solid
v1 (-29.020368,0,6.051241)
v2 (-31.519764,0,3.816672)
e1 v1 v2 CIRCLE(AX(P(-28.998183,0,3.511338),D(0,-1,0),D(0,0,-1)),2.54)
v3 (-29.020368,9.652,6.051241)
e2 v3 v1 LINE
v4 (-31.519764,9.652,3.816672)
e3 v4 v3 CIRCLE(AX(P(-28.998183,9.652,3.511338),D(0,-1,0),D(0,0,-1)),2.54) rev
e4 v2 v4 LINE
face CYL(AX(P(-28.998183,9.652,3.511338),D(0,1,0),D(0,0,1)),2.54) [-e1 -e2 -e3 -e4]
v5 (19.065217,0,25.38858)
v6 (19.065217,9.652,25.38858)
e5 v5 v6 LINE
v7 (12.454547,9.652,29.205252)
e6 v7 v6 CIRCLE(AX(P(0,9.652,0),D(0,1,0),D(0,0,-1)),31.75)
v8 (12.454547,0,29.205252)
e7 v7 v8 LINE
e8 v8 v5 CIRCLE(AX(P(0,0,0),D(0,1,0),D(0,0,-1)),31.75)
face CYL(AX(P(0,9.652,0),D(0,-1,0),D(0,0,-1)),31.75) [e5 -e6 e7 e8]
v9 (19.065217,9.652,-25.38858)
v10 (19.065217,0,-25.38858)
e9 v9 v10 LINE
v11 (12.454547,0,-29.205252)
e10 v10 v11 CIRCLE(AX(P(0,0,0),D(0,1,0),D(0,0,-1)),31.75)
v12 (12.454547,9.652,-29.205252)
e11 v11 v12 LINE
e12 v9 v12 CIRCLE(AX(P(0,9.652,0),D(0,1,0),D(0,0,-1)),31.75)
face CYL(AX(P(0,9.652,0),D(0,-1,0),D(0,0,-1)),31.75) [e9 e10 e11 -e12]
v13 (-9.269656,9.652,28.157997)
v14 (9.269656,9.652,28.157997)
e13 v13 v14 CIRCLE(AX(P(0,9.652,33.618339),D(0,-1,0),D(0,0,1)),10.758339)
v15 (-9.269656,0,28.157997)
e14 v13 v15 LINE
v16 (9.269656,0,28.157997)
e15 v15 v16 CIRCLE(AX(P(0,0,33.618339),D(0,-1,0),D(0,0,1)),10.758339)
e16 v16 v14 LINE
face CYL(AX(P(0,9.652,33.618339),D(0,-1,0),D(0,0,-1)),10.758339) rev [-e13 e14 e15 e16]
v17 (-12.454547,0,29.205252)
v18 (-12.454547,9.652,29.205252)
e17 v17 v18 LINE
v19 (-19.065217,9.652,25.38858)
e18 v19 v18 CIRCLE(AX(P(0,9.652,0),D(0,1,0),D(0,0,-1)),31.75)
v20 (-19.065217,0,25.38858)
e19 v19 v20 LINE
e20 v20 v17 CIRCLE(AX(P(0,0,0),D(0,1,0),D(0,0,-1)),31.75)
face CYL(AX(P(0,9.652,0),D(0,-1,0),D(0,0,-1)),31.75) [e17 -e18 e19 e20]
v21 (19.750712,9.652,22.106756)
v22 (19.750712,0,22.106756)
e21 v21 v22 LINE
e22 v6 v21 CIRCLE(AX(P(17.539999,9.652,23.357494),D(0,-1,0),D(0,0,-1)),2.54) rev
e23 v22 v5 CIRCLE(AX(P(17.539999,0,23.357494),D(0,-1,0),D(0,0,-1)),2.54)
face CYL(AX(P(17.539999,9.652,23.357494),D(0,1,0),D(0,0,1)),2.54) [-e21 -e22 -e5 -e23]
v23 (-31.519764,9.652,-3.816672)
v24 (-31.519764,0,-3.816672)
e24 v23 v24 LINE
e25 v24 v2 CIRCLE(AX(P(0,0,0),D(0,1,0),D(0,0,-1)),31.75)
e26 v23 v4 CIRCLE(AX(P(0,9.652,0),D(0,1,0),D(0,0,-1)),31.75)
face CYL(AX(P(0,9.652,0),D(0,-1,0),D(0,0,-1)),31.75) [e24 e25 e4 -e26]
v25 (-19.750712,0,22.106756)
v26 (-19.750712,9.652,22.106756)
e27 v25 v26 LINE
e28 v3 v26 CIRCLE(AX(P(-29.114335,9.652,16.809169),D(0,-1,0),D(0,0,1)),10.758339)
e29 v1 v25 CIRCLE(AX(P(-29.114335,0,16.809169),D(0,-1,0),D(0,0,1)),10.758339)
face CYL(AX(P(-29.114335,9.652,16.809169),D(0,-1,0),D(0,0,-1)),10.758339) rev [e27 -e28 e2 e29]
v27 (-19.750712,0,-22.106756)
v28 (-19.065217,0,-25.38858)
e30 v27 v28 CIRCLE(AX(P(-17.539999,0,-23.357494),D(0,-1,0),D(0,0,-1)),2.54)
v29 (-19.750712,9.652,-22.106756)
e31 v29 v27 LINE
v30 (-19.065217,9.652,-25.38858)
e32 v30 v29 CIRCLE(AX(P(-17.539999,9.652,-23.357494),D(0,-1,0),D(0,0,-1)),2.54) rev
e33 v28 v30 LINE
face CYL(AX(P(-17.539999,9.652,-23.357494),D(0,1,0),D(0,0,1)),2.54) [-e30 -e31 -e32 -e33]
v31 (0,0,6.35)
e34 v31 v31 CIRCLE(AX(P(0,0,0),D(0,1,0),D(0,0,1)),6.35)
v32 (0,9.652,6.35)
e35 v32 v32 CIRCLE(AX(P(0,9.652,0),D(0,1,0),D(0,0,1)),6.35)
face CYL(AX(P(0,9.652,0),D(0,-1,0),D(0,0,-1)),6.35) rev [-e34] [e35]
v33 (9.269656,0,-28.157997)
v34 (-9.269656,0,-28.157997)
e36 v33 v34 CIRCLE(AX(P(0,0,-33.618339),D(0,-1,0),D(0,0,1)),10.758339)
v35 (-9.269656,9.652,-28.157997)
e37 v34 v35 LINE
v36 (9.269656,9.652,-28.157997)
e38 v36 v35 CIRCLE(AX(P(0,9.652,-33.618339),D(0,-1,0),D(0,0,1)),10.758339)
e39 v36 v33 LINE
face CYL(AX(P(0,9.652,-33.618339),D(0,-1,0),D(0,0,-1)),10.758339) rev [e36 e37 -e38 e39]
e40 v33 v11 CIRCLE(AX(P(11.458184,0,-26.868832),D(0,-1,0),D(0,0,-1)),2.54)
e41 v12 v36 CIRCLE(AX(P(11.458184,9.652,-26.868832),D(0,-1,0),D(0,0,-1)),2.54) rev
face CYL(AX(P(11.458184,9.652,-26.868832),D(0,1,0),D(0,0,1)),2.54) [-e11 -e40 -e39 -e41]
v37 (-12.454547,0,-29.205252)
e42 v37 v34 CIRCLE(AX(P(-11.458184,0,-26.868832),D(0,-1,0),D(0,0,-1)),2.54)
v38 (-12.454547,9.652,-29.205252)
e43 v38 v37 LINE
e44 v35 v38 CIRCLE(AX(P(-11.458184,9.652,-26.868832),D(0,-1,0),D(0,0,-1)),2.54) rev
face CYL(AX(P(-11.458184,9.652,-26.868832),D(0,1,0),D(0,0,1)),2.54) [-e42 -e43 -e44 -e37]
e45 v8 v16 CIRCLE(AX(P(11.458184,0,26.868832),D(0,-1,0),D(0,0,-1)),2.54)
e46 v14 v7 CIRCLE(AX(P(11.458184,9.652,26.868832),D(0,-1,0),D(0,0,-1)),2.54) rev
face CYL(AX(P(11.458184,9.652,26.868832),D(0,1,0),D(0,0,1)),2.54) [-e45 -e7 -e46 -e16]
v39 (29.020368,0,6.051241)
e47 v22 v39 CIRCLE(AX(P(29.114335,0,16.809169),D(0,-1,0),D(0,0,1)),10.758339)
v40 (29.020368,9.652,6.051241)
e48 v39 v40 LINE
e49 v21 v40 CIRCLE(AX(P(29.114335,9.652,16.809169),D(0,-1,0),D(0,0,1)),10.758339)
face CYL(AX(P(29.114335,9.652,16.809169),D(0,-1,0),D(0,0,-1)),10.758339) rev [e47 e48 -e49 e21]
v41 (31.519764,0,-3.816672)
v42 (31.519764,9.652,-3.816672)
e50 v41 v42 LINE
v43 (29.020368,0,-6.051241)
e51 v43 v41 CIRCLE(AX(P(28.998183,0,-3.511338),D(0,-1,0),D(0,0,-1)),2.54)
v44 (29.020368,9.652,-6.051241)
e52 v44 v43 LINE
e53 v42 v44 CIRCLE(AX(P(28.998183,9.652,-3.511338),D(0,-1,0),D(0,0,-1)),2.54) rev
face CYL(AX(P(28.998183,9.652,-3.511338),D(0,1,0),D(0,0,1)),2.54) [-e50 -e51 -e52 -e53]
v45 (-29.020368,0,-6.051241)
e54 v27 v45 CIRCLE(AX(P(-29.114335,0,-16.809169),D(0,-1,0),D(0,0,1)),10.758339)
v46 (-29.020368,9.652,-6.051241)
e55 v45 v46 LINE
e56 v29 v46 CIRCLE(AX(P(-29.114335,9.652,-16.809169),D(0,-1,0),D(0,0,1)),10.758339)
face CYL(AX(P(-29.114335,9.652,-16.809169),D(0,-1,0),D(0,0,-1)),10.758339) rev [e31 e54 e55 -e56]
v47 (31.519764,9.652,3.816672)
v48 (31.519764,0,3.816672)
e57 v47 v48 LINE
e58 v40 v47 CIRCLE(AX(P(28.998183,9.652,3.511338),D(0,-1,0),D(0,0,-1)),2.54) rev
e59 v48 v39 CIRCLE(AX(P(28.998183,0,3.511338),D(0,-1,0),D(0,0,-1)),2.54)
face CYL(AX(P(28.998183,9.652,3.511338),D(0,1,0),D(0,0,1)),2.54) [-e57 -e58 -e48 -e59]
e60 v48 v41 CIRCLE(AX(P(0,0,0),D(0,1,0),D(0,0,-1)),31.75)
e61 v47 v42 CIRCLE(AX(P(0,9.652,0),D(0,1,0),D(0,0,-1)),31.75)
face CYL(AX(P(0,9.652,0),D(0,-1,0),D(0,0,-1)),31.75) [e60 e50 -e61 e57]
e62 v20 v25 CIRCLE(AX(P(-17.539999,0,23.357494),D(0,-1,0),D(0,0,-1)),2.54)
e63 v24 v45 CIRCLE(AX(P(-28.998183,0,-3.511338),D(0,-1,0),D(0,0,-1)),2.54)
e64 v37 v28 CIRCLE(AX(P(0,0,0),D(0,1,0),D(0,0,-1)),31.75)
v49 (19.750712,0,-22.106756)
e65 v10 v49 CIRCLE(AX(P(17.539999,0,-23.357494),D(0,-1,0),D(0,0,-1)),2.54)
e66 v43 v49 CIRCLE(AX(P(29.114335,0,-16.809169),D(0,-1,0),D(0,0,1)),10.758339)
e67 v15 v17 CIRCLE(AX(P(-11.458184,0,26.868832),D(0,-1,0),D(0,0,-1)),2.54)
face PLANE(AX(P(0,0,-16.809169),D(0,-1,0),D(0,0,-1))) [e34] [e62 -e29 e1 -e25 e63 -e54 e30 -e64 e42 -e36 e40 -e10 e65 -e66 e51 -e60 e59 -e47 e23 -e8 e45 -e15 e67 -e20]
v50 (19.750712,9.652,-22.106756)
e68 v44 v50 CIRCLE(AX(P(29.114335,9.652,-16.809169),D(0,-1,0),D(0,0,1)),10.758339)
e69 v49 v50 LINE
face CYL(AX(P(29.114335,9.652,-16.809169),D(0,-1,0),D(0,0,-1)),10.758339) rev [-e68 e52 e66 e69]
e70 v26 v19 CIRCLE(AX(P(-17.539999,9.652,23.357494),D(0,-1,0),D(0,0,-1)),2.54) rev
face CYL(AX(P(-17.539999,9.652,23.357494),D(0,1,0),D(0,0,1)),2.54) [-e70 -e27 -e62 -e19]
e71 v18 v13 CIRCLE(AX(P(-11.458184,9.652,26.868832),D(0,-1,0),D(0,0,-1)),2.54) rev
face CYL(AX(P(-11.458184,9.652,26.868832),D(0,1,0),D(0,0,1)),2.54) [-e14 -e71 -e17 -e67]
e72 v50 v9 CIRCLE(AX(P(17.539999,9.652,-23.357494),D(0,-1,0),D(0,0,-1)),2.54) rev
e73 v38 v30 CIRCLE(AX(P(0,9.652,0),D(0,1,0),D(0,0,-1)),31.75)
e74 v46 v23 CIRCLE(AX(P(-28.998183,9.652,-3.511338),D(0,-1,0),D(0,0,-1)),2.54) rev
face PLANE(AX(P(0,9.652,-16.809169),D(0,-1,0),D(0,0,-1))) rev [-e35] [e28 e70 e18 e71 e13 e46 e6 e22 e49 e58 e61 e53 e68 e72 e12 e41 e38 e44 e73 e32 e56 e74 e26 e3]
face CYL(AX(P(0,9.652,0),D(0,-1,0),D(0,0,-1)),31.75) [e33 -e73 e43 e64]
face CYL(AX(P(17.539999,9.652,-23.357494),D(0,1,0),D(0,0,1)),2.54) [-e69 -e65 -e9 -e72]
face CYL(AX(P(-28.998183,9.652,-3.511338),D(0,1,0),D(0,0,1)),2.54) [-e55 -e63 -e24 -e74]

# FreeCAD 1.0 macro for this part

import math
import FreeCAD as App
import Part
import Sketcher
Q = App.Units.Quantity


def edges_at(feature, points):
    """Names of the edges that pass closest to the given points."""
    edges = feature.Shape.Edges
    near = lambda p: min(range(len(edges)), key=lambda i: edges[i].distToShape(Part.Vertex(*p))[0])
    return sorted({f"Edge{near(p) + 1}" for p in points})

doc = App.newDocument("Part")
body = doc.addObject("PartDesign::Body", "Body")

# Sketch on XZ plane
sketch1 = body.newObject("Sketcher::SketchObject", "Sketch")
sketch1.AttachmentSupport = (doc.getObject("XZ_Plane"), [""])
sketch1.MapMode = "FlatFace"
sketch1.addGeometry(Part.ArcOfCircle(Part.Circle(App.Vector(0, -34, 0), App.Vector(0, 0, 1), 11), math.radians(19), math.radians(161)), False)
sketch1.addGeometry(Part.ArcOfCircle(Part.Circle(App.Vector(0, 0, 0), App.Vector(0, 0, 1), 32), math.radians(-131), math.radians(-109)), False)
sketch1.addGeometry(Part.ArcOfCircle(Part.Circle(App.Vector(-29, -17, 0), App.Vector(0, 0, 1), 11), math.radians(-41), math.radians(101)), False)
sketch1.addGeometry(Part.ArcOfCircle(Part.Circle(App.Vector(0, 0, 0), App.Vector(0, 0, 1), 32), math.radians(169), math.radians(191)), False)
sketch1.addGeometry(Part.ArcOfCircle(Part.Circle(App.Vector(-29, 17, 0), App.Vector(0, 0, 1), 11), math.radians(-101), math.radians(41)), False)
sketch1.addGeometry(Part.ArcOfCircle(Part.Circle(App.Vector(0, 0, 0), App.Vector(0, 0, 1), 32), math.radians(109), math.radians(131)), False)
sketch1.addGeometry(Part.ArcOfCircle(Part.Circle(App.Vector(0, 34, 0), App.Vector(0, 0, 1), 11), math.radians(-161), math.radians(-19)), False)
sketch1.addGeometry(Part.ArcOfCircle(Part.Circle(App.Vector(0, 0, 0), App.Vector(0, 0, 1), 32), math.radians(49), math.radians(71)), False)
sketch1.addGeometry(Part.ArcOfCircle(Part.Circle(App.Vector(29, 17, 0), App.Vector(0, 0, 1), 11), math.radians(139), math.radians(281)), False)
sketch1.addGeometry(Part.ArcOfCircle(Part.Circle(App.Vector(0, 0, 0), App.Vector(0, 0, 1), 32), math.radians(-11), math.radians(11)), False)
sketch1.addGeometry(Part.ArcOfCircle(Part.Circle(App.Vector(29, -17, 0), App.Vector(0, 0, 1), 11), math.radians(79), math.radians(221)), False)
sketch1.addGeometry(Part.ArcOfCircle(Part.Circle(App.Vector(0, 0, 0), App.Vector(0, 0, 1), 32), math.radians(-71), math.radians(-49)), False)
sketch1.addGeometry(Part.Circle(App.Vector(0, 0, 0), App.Vector(0, 0, 1), 6), False)
sketch1.addConstraint(Sketcher.Constraint("Coincident", 0, 2, 1, 2))
sketch1.addConstraint(Sketcher.Constraint("Coincident", 1, 1, 2, 1))
sketch1.addConstraint(Sketcher.Constraint("Coincident", 2, 2, 3, 2))
sketch1.addConstraint(Sketcher.Constraint("Coincident", 3, 1, 4, 1))
sketch1.addConstraint(Sketcher.Constraint("Coincident", 4, 2, 5, 2))
sketch1.addConstraint(Sketcher.Constraint("Coincident", 5, 1, 6, 1))
sketch1.addConstraint(Sketcher.Constraint("Coincident", 6, 2, 7, 2))
sketch1.addConstraint(Sketcher.Constraint("Coincident", 7, 1, 8, 1))
sketch1.addConstraint(Sketcher.Constraint("Coincident", 8, 2, 9, 2))
sketch1.addConstraint(Sketcher.Constraint("Coincident", 9, 1, 10, 1))
sketch1.addConstraint(Sketcher.Constraint("Coincident", 10, 2, 11, 2))
sketch1.addConstraint(Sketcher.Constraint("Coincident", 11, 1, 0, 1))
sketch1.addConstraint(Sketcher.Constraint("Coincident", 1, 3, -1, 1))
sketch1.addConstraint(Sketcher.Constraint("Coincident", 3, 3, -1, 1))
sketch1.addConstraint(Sketcher.Constraint("Coincident", 5, 3, -1, 1))
sketch1.addConstraint(Sketcher.Constraint("Coincident", 7, 3, -1, 1))
sketch1.addConstraint(Sketcher.Constraint("Coincident", 9, 3, -1, 1))
sketch1.addConstraint(Sketcher.Constraint("Coincident", 11, 3, -1, 1))
sketch1.addConstraint(Sketcher.Constraint("Coincident", 12, 3, -1, 1))
sketch1.addConstraint(Sketcher.Constraint("Equal", 0, 2))
sketch1.addConstraint(Sketcher.Constraint("Equal", 1, 3))
sketch1.addConstraint(Sketcher.Constraint("Equal", 2, 4))
sketch1.addConstraint(Sketcher.Constraint("Equal", 3, 5))
sketch1.addConstraint(Sketcher.Constraint("Equal", 4, 6))
sketch1.addConstraint(Sketcher.Constraint("Equal", 5, 7))
sketch1.addConstraint(Sketcher.Constraint("Equal", 6, 8))
sketch1.addConstraint(Sketcher.Constraint("Equal", 7, 9))
sketch1.addConstraint(Sketcher.Constraint("Equal", 8, 10))
sketch1.addConstraint(Sketcher.Constraint("Equal", 9, 11))
sketch1.addConstraint(Sketcher.Constraint("Symmetric", 0, 3, 6, 3, -1, 1))
sketch1.addConstraint(Sketcher.Constraint("Symmetric", 2, 3, 8, 3, -1, 1))
sketch1.addConstraint(Sketcher.Constraint("Symmetric", 4, 3, 10, 3, -1, 1))
sketch1.addConstraint(Sketcher.Constraint("Symmetric", 4, 3, 8, 3, -2))
sketch1.addConstraint(Sketcher.Constraint("PointOnObject", 0, 3, -2))
sketch1.addConstraint(Sketcher.Constraint("Diameter", 12, Q("0.5 in")))
sketch1.addConstraint(Sketcher.Constraint("Radius", 1, Q("1.25 in")))
sketch1.addConstraint(Sketcher.Constraint("DistanceX", 0, 2, -1, 1, Q("0.4 in")))
sketch1.addConstraint(Sketcher.Constraint("DistanceX", 2, 2, 1, 1, Q("0.4 in")))
sketch1.addConstraint(Sketcher.Constraint("Radius", 0, 10.758339))
sketch1.addConstraint(Sketcher.Constraint("DistanceY", 2, 3, -1, 1, 16.809169))
pad1 = body.newObject("PartDesign::Pad", "Pad")
pad1.Profile = sketch1
pad1.Length = Q("0.38 in")
pad1.Reversed = True
doc.recompute()

fillet = body.newObject("PartDesign::Fillet", "Fillet")
fillet.Base = (pad1, edges_at(pad1, [
    (-10.16, 4.826, -30.081),
    (10.16, 4.826, -30.081),
    (20.97, 4.826, -23.839),
    (31.13, 4.826, -6.241),
    (31.13, 4.826, 6.241),
    (20.97, 4.826, 23.839),
    (10.16, 4.826, 30.081),
    (-10.16, 4.826, 30.081),
    (-20.97, 4.826, 23.839),
    (-31.13, 4.826, 6.241),
    (-31.13, 4.826, -6.241),
    (-20.97, 4.826, -23.839),
]))
fillet.Radius = Q("0.1 in")

doc.recompute()
